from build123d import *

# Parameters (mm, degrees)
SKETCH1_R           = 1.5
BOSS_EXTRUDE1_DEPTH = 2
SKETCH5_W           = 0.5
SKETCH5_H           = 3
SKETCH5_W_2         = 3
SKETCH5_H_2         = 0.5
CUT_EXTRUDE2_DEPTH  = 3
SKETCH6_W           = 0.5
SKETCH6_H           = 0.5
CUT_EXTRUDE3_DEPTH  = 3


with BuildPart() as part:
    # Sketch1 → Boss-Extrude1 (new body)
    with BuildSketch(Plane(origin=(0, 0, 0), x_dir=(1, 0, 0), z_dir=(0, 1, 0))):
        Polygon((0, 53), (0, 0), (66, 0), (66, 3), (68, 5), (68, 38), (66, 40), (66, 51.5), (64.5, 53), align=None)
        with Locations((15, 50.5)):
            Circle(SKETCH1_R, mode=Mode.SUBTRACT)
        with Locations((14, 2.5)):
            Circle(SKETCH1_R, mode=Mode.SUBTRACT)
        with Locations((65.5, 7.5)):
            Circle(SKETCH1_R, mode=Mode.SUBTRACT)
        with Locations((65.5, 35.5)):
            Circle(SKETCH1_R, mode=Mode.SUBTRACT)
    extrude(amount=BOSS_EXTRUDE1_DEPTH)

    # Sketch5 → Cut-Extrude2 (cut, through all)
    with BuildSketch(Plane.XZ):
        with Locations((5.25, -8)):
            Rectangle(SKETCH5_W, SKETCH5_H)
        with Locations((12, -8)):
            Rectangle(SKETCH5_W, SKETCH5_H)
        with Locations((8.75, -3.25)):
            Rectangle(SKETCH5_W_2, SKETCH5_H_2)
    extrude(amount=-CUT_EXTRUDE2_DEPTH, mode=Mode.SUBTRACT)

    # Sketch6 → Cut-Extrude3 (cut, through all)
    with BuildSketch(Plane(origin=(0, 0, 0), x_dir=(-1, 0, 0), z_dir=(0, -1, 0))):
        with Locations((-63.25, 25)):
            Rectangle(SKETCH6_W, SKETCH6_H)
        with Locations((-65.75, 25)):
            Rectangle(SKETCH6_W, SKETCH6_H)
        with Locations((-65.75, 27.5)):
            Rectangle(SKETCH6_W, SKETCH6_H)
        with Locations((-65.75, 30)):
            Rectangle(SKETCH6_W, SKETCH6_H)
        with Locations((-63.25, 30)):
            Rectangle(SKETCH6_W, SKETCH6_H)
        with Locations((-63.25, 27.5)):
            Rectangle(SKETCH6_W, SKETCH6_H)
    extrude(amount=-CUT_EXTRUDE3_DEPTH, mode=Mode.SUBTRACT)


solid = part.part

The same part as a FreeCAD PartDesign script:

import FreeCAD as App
import Part
import Sketcher

doc = App.newDocument("Part")
body = doc.addObject("PartDesign::Body", "Body")

# Sketch on XZ plane
sketch1 = doc.addObject("Sketcher::SketchObject", "Sketch")
body.addObject(sketch1)
sketch1.AttachmentSupport = (doc.XZ_Plane, [""])
sketch1.MapMode = "FlatFace"
sketch1.addGeometry([
    Part.LineSegment(App.Vector(0, -53, 0), App.Vector(0, 0, 0)),  # 0
    Part.LineSegment(App.Vector(0, 0, 0), App.Vector(66, 0, 0)),  # 1
    Part.LineSegment(App.Vector(66, 0, 0), App.Vector(66, -3, 0)),  # 2
    Part.LineSegment(App.Vector(66, -3, 0), App.Vector(68, -5, 0)),  # 3
    Part.LineSegment(App.Vector(68, -5, 0), App.Vector(68, -38, 0)),  # 4
    Part.LineSegment(App.Vector(68, -38, 0), App.Vector(66, -40, 0)),  # 5
    Part.LineSegment(App.Vector(66, -40, 0), App.Vector(66, -51.5, 0)),  # 6
    Part.LineSegment(App.Vector(66, -51.5, 0), App.Vector(64.5, -53, 0)),  # 7
    Part.LineSegment(App.Vector(64.5, -53, 0), App.Vector(0, -53, 0)),  # 8
    Part.Circle(App.Vector(14, -2.5, 0), App.Vector(0, 0, 1), 1.5),  # 9
    Part.Circle(App.Vector(65.5, -7.5, 0), App.Vector(0, 0, 1), 1.5),  # 10
    Part.Circle(App.Vector(15, -50.5, 0), App.Vector(0, 0, 1), 1.5),  # 11
    Part.Circle(App.Vector(65.5, -35.5, 0), App.Vector(0, 0, 1), 1.5),  # 12
], False)
sketch1.addConstraint([
    Sketcher.Constraint("Coincident", 0, 2, 1, 1),
    Sketcher.Constraint("Coincident", 1, 2, 2, 1),
    Sketcher.Constraint("Coincident", 2, 2, 3, 1),
    Sketcher.Constraint("Coincident", 3, 2, 4, 1),
    Sketcher.Constraint("Coincident", 4, 2, 5, 1),
    Sketcher.Constraint("Coincident", 5, 2, 6, 1),
    Sketcher.Constraint("Coincident", 6, 2, 7, 1),
    Sketcher.Constraint("Coincident", 7, 2, 8, 1),
    Sketcher.Constraint("Coincident", 8, 2, 0, 1),
    Sketcher.Constraint("Vertical", 0),
    Sketcher.Constraint("Horizontal", 1),
    Sketcher.Constraint("Vertical", 2),
    Sketcher.Constraint("Vertical", 4),
    Sketcher.Constraint("Vertical", 6),
    Sketcher.Constraint("Horizontal", 8),
    Sketcher.Constraint("Coincident", 0, 2, -1, 1),
    Sketcher.Constraint("Equal", 9, 10),
    Sketcher.Constraint("Equal", 10, 11),
    Sketcher.Constraint("Equal", 11, 12),
    Sketcher.Constraint("Perpendicular", 3, 5),
    Sketcher.Constraint("Parallel", 5, 7),
    Sketcher.Constraint("Vertical", 10, 3, 12, 3),
    Sketcher.Constraint("Vertical", 2, 2, 5, 2),
    Sketcher.Constraint("Equal", 3, 5),
    Sketcher.Constraint("Diameter", 9, 3.0),
    Sketcher.Constraint("DistanceX", 1, 1, 1, 2, 66.0),
    Sketcher.Constraint("DistanceY", 0, 1, 0, 2, 53.0),
    Sketcher.Constraint("DistanceY", 2, 2, 2, 1, 3.0),
    Sketcher.Constraint("DistanceY", 4, 2, 4, 1, 33.0),
    Sketcher.Constraint("DistanceX", 8, 2, 8, 1, 64.5),
    Sketcher.Constraint("DistanceY", 6, 2, 6, 1, 11.5),
    Sketcher.Constraint("DistanceX", -1, 1, 9, 3, 14.0),
    Sketcher.Constraint("DistanceX", -1, 1, 11, 3, 15.0),
    Sketcher.Constraint("DistanceY", 10, 3, 9, 3, 5.0),
    Sketcher.Constraint("DistanceY", 11, 3, 9, 3, 48.0),
    Sketcher.Constraint("DistanceY", 12, 3, 10, 3, 28.0),
    Sketcher.Constraint("DistanceY", 6, 2, 12, 3, 16.0),
    Sketcher.Constraint("DistanceX", 7, 2, 12, 3, 1.0),
])
pad1 = doc.addObject("PartDesign::Pad", "Pad")
body.addObject(pad1)
pad1.Profile = sketch1
pad1.Length = 2
pad1.Reversed = True

# Sketch on XZ plane
sketch2 = doc.addObject("Sketcher::SketchObject", "Sketch001")
body.addObject(sketch2)
sketch2.AttachmentSupport = (doc.XZ_Plane, [""])
sketch2.MapMode = "FlatFace"
sketch2.addGeometry([
    Part.LineSegment(App.Vector(5, -6.5, 0), App.Vector(5, -9.5, 0)),  # 0
    Part.LineSegment(App.Vector(5, -9.5, 0), App.Vector(5.5, -9.5, 0)),  # 1
    Part.LineSegment(App.Vector(5.5, -9.5, 0), App.Vector(5.5, -6.5, 0)),  # 2
    Part.LineSegment(App.Vector(5.5, -6.5, 0), App.Vector(5, -6.5, 0)),  # 3
    Part.LineSegment(App.Vector(11.8, -6.5, 0), App.Vector(11.8, -9.5, 0)),  # 4
    Part.LineSegment(App.Vector(11.8, -9.5, 0), App.Vector(12.2, -9.5, 0)),  # 5
    Part.LineSegment(App.Vector(12.2, -9.5, 0), App.Vector(12.2, -6.5, 0)),  # 6
    Part.LineSegment(App.Vector(12.2, -6.5, 0), App.Vector(11.8, -6.5, 0)),  # 7
    Part.LineSegment(App.Vector(7.2, -3, 0), App.Vector(7.2, -3.5, 0)),  # 8
    Part.LineSegment(App.Vector(7.2, -3.5, 0), App.Vector(10.2, -3.5, 0)),  # 9
    Part.LineSegment(App.Vector(10.2, -3.5, 0), App.Vector(10.2, -3, 0)),  # 10
    Part.LineSegment(App.Vector(10.2, -3, 0), App.Vector(7.2, -3, 0)),  # 11
], False)
sketch2.addConstraint([
    Sketcher.Constraint("Coincident", 0, 2, 1, 1),
    Sketcher.Constraint("Coincident", 1, 2, 2, 1),
    Sketcher.Constraint("Coincident", 2, 2, 3, 1),
    Sketcher.Constraint("Coincident", 3, 2, 0, 1),
    Sketcher.Constraint("Coincident", 4, 2, 5, 1),
    Sketcher.Constraint("Coincident", 5, 2, 6, 1),
    Sketcher.Constraint("Coincident", 6, 2, 7, 1),
    Sketcher.Constraint("Coincident", 7, 2, 4, 1),
    Sketcher.Constraint("Coincident", 8, 2, 9, 1),
    Sketcher.Constraint("Coincident", 9, 2, 10, 1),
    Sketcher.Constraint("Coincident", 10, 2, 11, 1),
    Sketcher.Constraint("Coincident", 11, 2, 8, 1),
    Sketcher.Constraint("Vertical", 0),
    Sketcher.Constraint("Horizontal", 1),
    Sketcher.Constraint("Vertical", 2),
    Sketcher.Constraint("Horizontal", 3),
    Sketcher.Constraint("Vertical", 4),
    Sketcher.Constraint("Horizontal", 5),
    Sketcher.Constraint("Vertical", 6),
    Sketcher.Constraint("Horizontal", 7),
    Sketcher.Constraint("Vertical", 8),
    Sketcher.Constraint("Horizontal", 9),
    Sketcher.Constraint("Vertical", 10),
    Sketcher.Constraint("Horizontal", 11),
    Sketcher.Constraint("Horizontal", 1, 2, 4, 2),
    Sketcher.Constraint("Horizontal", 3, 2, 6, 2),
    Sketcher.Constraint("Equal", 3, 5),
    Sketcher.Constraint("Equal", 11, 0),
    Sketcher.Constraint("Equal", 7, 8),
    Sketcher.Constraint("DistanceX", 9, 1, 9, 2, 3.0),
    Sketcher.Constraint("DistanceX", 1, 1, 1, 2, 0.5),
    Sketcher.Constraint("DistanceX", -1, 1, 0, 2, 5.0),
    Sketcher.Constraint("DistanceY", 10, 2, -1, 1, 3.0),
    Sketcher.Constraint("DistanceY", 2, 2, 8, 2, 3.0),
    Sketcher.Constraint("DistanceX", 8, 2, 6, 2, 5.0),
    Sketcher.Constraint("DistanceX", -1, 1, 4, 2, 11.75),
])
pocket1 = doc.addObject("PartDesign::Pocket", "Pocket")
body.addObject(pocket1)
pocket1.Profile = sketch2
pocket1.Type = "ThroughAll"

# Sketch on XZ plane
sketch3 = doc.addObject("Sketcher::SketchObject", "Sketch002")
body.addObject(sketch3)
sketch3.AttachmentSupport = (doc.XZ_Plane, [""])
sketch3.MapMode = "FlatFace"
sketch3.addGeometry([
    Part.LineSegment(App.Vector(63.5, -25.2, 0), App.Vector(63.5, -24.8, 0)),  # 0
    Part.LineSegment(App.Vector(63.5, -24.8, 0), App.Vector(63, -24.8, 0)),  # 1
    Part.LineSegment(App.Vector(63, -24.8, 0), App.Vector(63, -25.2, 0)),  # 2
    Part.LineSegment(App.Vector(63, -25.2, 0), App.Vector(63.5, -25.2, 0)),  # 3
    Part.LineSegment(App.Vector(66, -25.2, 0), App.Vector(66, -24.8, 0)),  # 4
    Part.LineSegment(App.Vector(66, -24.8, 0), App.Vector(65.5, -24.8, 0)),  # 5
    Part.LineSegment(App.Vector(65.5, -24.8, 0), App.Vector(65.5, -25.2, 0)),  # 6
    Part.LineSegment(App.Vector(65.5, -25.2, 0), App.Vector(66, -25.2, 0)),  # 7
    Part.LineSegment(App.Vector(66, -27.8, 0), App.Vector(66, -27.2, 0)),  # 8
    Part.LineSegment(App.Vector(66, -27.2, 0), App.Vector(65.5, -27.2, 0)),  # 9
    Part.LineSegment(App.Vector(65.5, -27.2, 0), App.Vector(65.5, -27.8, 0)),  # 10
    Part.LineSegment(App.Vector(65.5, -27.8, 0), App.Vector(66, -27.8, 0)),  # 11
    Part.LineSegment(App.Vector(66, -30.2, 0), App.Vector(66, -29.8, 0)),  # 12
    Part.LineSegment(App.Vector(66, -29.8, 0), App.Vector(65.5, -29.8, 0)),  # 13
    Part.LineSegment(App.Vector(65.5, -29.8, 0), App.Vector(65.5, -30.2, 0)),  # 14
    Part.LineSegment(App.Vector(65.5, -30.2, 0), App.Vector(66, -30.2, 0)),  # 15
    Part.LineSegment(App.Vector(63.5, -30.2, 0), App.Vector(63.5, -29.8, 0)),  # 16
    Part.LineSegment(App.Vector(63.5, -29.8, 0), App.Vector(63, -29.8, 0)),  # 17
    Part.LineSegment(App.Vector(63, -29.8, 0), App.Vector(63, -30.2, 0)),  # 18
    Part.LineSegment(App.Vector(63, -30.2, 0), App.Vector(63.5, -30.2, 0)),  # 19
    Part.LineSegment(App.Vector(63.5, -27.8, 0), App.Vector(63.5, -27.2, 0)),  # 20
    Part.LineSegment(App.Vector(63.5, -27.2, 0), App.Vector(63, -27.2, 0)),  # 21
    Part.LineSegment(App.Vector(63, -27.2, 0), App.Vector(63, -27.8, 0)),  # 22
    Part.LineSegment(App.Vector(63, -27.8, 0), App.Vector(63.5, -27.8, 0)),  # 23
], False)
sketch3.addConstraint([
    Sketcher.Constraint("Coincident", 0, 2, 1, 1),
    Sketcher.Constraint("Coincident", 1, 2, 2, 1),
    Sketcher.Constraint("Coincident", 2, 2, 3, 1),
    Sketcher.Constraint("Coincident", 3, 2, 0, 1),
    Sketcher.Constraint("Coincident", 4, 2, 5, 1),
    Sketcher.Constraint("Coincident", 5, 2, 6, 1),
    Sketcher.Constraint("Coincident", 6, 2, 7, 1),
    Sketcher.Constraint("Coincident", 7, 2, 4, 1),
    Sketcher.Constraint("Coincident", 8, 2, 9, 1),
    Sketcher.Constraint("Coincident", 9, 2, 10, 1),
    Sketcher.Constraint("Coincident", 10, 2, 11, 1),
    Sketcher.Constraint("Coincident", 11, 2, 8, 1),
    Sketcher.Constraint("Coincident", 12, 2, 13, 1),
    Sketcher.Constraint("Coincident", 13, 2, 14, 1),
    Sketcher.Constraint("Coincident", 14, 2, 15, 1),
    Sketcher.Constraint("Coincident", 15, 2, 12, 1),
    Sketcher.Constraint("Coincident", 16, 2, 17, 1),
    Sketcher.Constraint("Coincident", 17, 2, 18, 1),
    Sketcher.Constraint("Coincident", 18, 2, 19, 1),
    Sketcher.Constraint("Coincident", 19, 2, 16, 1),
    Sketcher.Constraint("Coincident", 20, 2, 21, 1),
    Sketcher.Constraint("Coincident", 21, 2, 22, 1),
    Sketcher.Constraint("Coincident", 22, 2, 23, 1),
    Sketcher.Constraint("Coincident", 23, 2, 20, 1),
    Sketcher.Constraint("Vertical", 0),
    Sketcher.Constraint("Horizontal", 1),
    Sketcher.Constraint("Vertical", 2),
    Sketcher.Constraint("Horizontal", 3),
    Sketcher.Constraint("Vertical", 4),
    Sketcher.Constraint("Horizontal", 5),
    Sketcher.Constraint("Vertical", 6),
    Sketcher.Constraint("Horizontal", 7),
    Sketcher.Constraint("Vertical", 8),
    Sketcher.Constraint("Horizontal", 9),
    Sketcher.Constraint("Vertical", 10),
    Sketcher.Constraint("Horizontal", 11),
    Sketcher.Constraint("Vertical", 12),
    Sketcher.Constraint("Horizontal", 13),
    Sketcher.Constraint("Vertical", 14),
    Sketcher.Constraint("Horizontal", 15),
    Sketcher.Constraint("Vertical", 16),
    Sketcher.Constraint("Horizontal", 17),
    Sketcher.Constraint("Vertical", 18),
    Sketcher.Constraint("Horizontal", 19),
    Sketcher.Constraint("Vertical", 20),
    Sketcher.Constraint("Horizontal", 21),
    Sketcher.Constraint("Vertical", 22),
    Sketcher.Constraint("Horizontal", 23),
    Sketcher.Constraint("Horizontal", 1, 2, 4, 2),
    Sketcher.Constraint("Horizontal", 3, 2, 6, 2),
    Sketcher.Constraint("Horizontal", 13, 2, 16, 2),
    Sketcher.Constraint("Horizontal", 15, 2, 18, 2),
    Sketcher.Constraint("Horizontal", 9, 2, 20, 2),
    Sketcher.Constraint("Horizontal", 11, 2, 22, 2),
    Sketcher.Constraint("Vertical", 7, 2, 8, 2),
    Sketcher.Constraint("Vertical", 6, 2, 9, 2),
    Sketcher.Constraint("Vertical", 11, 2, 12, 2),
    Sketcher.Constraint("Vertical", 10, 2, 13, 2),
    Sketcher.Constraint("Vertical", 3, 2, 16, 2),
    Sketcher.Constraint("Vertical", 2, 2, 17, 2),
    Sketcher.Constraint("Vertical", 19, 2, 20, 2),
    Sketcher.Constraint("Vertical", 18, 2, 21, 2),
    Sketcher.Constraint("Equal", 3, 5),
    Sketcher.Constraint("Equal", 23, 0),
    Sketcher.Constraint("Equal", 6, 8),
    Sketcher.Constraint("Equal", 10, 12),
    Sketcher.Constraint("DistanceX", 1, 2, 1, 1, 0.5),
    Sketcher.Constraint("DistanceX", -1, 1, 1, 2, 63.0),
    Sketcher.Constraint("DistanceX", -1, 1, 4, 2, 66.0),
    Sketcher.Constraint("DistanceY", 8, 2, 7, 2, 2.0),
    Sketcher.Constraint("DistanceY", 12, 2, 11, 2, 2.0),
    Sketcher.Constraint("DistanceY", 0, 2, -1, 1, 24.75),
])
pocket2 = doc.addObject("PartDesign::Pocket", "Pocket001")
body.addObject(pocket2)
pocket2.Profile = sketch3
pocket2.Type = "ThroughAll"

doc.recompute()
